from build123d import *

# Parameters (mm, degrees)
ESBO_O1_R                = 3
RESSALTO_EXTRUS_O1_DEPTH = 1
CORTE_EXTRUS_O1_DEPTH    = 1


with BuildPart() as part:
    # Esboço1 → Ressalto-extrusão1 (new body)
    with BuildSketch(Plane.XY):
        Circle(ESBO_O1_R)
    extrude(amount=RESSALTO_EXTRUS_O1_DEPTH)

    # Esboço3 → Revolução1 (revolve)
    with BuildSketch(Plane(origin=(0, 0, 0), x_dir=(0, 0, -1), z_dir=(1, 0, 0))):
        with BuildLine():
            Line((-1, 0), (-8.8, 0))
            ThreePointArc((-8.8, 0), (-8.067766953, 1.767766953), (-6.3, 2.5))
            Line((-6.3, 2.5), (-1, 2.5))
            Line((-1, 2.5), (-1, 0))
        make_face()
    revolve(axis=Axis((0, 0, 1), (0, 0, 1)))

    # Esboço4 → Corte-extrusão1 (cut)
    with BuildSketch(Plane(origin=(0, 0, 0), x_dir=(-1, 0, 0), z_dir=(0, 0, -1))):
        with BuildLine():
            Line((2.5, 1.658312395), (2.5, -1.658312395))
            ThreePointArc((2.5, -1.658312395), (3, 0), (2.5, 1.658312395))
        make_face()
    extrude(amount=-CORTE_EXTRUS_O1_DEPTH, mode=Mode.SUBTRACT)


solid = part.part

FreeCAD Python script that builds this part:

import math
import FreeCAD as App
import Part
import Sketcher

V = App.Vector
Q = App.Units.Quantity

doc = App.newDocument("Part")
body = doc.addObject("PartDesign::Body", "Body")

sketch1 = doc.addObject("Sketcher::SketchObject", "Sketch")
body.addObject(sketch1)
sketch1.AttachmentSupport = (doc.XY_Plane, [""])
sketch1.MapMode = "FlatFace"
sketch1.addGeometry(Part.Circle(V(0, 0, 0), V(0, 0, 1), 3), False)
sketch1.addConstraint([
    Sketcher.Constraint("Coincident", 0, 3, -1, 1),
    Sketcher.Constraint("Diameter", 0, Q("6 mm")),
])
pad1 = doc.addObject("PartDesign::Pad", "Pad")
body.addObject(pad1)
pad1.Profile = sketch1
pad1.Length = 1

sketch2 = doc.addObject("Sketcher::SketchObject", "Sketch001")
body.addObject(sketch2)
sketch2.AttachmentSupport = (doc.YZ_Plane, [""])
sketch2.MapMode = "FlatFace"
sketch2.addGeometry([
    Part.LineSegment(V(0, 8.8, 0), V(0, 1, 0)),
    Part.LineSegment(V(0, 1, 0), V(2.5, 1, 0)),
    Part.LineSegment(V(2.5, 1, 0), V(2.5, 6.3, 0)),
    Part.ArcOfCircle(Part.Circle(V(0, 6.3, 0), V(0, 0, 1), 2.5), math.radians(0), math.radians(90)),
], False)
sketch2.addConstraint([
    Sketcher.Constraint("Coincident", 0, 2, 1, 1),
    Sketcher.Constraint("Coincident", 1, 2, 2, 1),
    Sketcher.Constraint("Tangent", 2, 2, 3, 1),
    Sketcher.Constraint("Coincident", 3, 2, 0, 1),
    Sketcher.Constraint("Vertical", 0),
    Sketcher.Constraint("Horizontal", 1),
    Sketcher.Constraint("Vertical", 2),
    Sketcher.Constraint("PointOnObject", 3, 3, -2),
    Sketcher.Constraint("PointOnObject", 0, 2, -2),
    Sketcher.Constraint("Radius", 3, Q("2.5 mm")),
    Sketcher.Constraint("DistanceY", 0, 2, 0, 1, Q("7.8 mm")),
    Sketcher.Constraint("DistanceY", -1, 1, 0, 2, Q("1 mm")),
])
revolution = doc.addObject("PartDesign::Revolution", "Revolution")
body.addObject(revolution)
revolution.Profile = sketch2
revolution.ReferenceAxis = (sketch2, ["V_Axis"])
revolution.Angle = 360

sketch3 = doc.addObject("Sketcher::SketchObject", "Sketch002")
body.addObject(sketch3)
sketch3.AttachmentSupport = (doc.XY_Plane, [""])
sketch3.MapMode = "FlatFace"
sketch3.addGeometry([
    Part.LineSegment(V(-2.5, 1.7, 0), V(-2.5, -1.7, 0)),
    Part.ArcOfCircle(Part.Circle(V(0, 0, 0), V(0, 0, 1), 3), math.radians(146), math.radians(214)),
], False)
sketch3.addConstraint([
    Sketcher.Constraint("Coincident", 0, 1, 1, 1),
    Sketcher.Constraint("Coincident", 1, 2, 0, 2),
    Sketcher.Constraint("Vertical", 0),
    Sketcher.Constraint("Coincident", 1, 3, -1, 1),
    Sketcher.Constraint("Radius", 1, Q("3 mm")),
    Sketcher.Constraint("DistanceX", 0, 1, -1, 1, Q("2.5 mm")),
])
pocket1 = doc.addObject("PartDesign::Pocket", "Pocket")
body.addObject(pocket1)
pocket1.Profile = sketch3
pocket1.Length = 1
pocket1.Reversed = True

doc.recompute()
